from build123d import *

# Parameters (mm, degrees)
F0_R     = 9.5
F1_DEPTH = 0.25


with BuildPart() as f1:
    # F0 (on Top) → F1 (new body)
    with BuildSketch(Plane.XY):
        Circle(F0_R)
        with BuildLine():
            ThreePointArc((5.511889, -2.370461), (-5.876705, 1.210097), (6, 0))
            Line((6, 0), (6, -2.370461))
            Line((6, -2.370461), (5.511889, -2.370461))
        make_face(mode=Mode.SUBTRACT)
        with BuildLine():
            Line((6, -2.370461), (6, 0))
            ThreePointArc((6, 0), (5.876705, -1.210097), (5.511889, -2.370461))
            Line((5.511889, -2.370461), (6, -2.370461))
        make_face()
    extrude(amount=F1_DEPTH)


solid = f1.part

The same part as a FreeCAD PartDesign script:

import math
import FreeCAD as App
import Part
import Sketcher
Q = App.Units.Quantity

doc = App.newDocument("Part")
body = doc.addObject("PartDesign::Body", "Body")

# Sketch on XY plane
sketch1 = body.newObject("Sketcher::SketchObject", "Sketch")
sketch1.AttachmentSupport = (doc.getObject("XY_Plane"), [""])
sketch1.MapMode = "FlatFace"
sketch1.addGeometry([
    Part.Circle(App.Vector(0, 0, 0), App.Vector(0, 0, 1), 9.5),
    Part.ArcOfCircle(Part.Circle(App.Vector(0, -0.000001, 0), App.Vector(0, 0, 1), 6), math.radians(0.000012), math.radians(336.729246)),
    Part.ArcOfCircle(Part.Circle(App.Vector(-0.000026, 0.000004, 0), App.Vector(0, 0, 1), 6.000026), math.radians(-23.270703), math.radians(-0.000039)),
], False)
sketch1.addConstraint([
    Sketcher.Constraint("Coincident", 1, 1, 2, 2),
    Sketcher.Constraint("Coincident", 2, 1, 1, 2),
    Sketcher.Constraint("Coincident", 0, 3, -1, 1),
    Sketcher.Constraint("Coincident", 1, 3, -1, 1),
    Sketcher.Constraint("PointOnObject", 1, 1, -1),
    Sketcher.Constraint("Diameter", 0, Q("19 mm")),
    Sketcher.Constraint("Radius", 1, Q("6 mm")),
    Sketcher.Constraint("Radius", 2, Q("6.000026 mm")),
    Sketcher.Constraint("DistanceX", -1, 1, 2, 1, Q("5.511889 mm")),
])
pad1 = body.newObject("PartDesign::Pad", "Pad")
pad1.Profile = sketch1
pad1.Length = 0.25

doc.recompute()
